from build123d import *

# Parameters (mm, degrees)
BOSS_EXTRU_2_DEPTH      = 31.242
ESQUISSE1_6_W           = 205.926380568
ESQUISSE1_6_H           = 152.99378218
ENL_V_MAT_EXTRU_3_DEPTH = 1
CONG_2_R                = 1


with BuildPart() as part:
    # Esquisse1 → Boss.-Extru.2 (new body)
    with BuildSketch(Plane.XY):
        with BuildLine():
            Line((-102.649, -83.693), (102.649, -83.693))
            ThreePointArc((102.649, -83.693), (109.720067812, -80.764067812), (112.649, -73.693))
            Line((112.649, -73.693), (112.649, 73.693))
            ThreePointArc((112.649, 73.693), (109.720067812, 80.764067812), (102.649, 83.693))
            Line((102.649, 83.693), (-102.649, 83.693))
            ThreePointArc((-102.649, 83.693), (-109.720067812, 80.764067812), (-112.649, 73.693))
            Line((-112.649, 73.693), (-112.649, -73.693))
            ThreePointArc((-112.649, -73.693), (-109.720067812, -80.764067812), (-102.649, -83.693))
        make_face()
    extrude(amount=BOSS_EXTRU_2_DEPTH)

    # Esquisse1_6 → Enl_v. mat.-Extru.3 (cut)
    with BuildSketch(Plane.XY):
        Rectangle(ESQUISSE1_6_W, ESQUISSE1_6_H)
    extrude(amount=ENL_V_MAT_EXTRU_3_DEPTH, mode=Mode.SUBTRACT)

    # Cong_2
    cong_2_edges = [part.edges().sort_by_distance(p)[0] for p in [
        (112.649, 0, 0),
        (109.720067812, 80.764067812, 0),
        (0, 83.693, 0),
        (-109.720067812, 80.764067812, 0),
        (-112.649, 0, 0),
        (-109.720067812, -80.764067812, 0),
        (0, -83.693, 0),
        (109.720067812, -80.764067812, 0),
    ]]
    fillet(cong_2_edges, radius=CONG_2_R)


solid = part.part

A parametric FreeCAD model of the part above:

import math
import FreeCAD as App
import Part
import Sketcher

V = App.Vector


def edges_at(feature, points):
    """Names of the edges that pass closest to the given points."""
    edges = feature.Shape.Edges
    near = lambda p: min(range(len(edges)), key=lambda i: edges[i].distToShape(Part.Vertex(*p))[0])
    return sorted({f"Edge{near(p) + 1}" for p in points})

doc = App.newDocument("Part")
body = doc.addObject("PartDesign::Body", "Body")

# Sketch on XY plane
sketch1 = body.newObject("Sketcher::SketchObject", "Sketch")
sketch1.AttachmentSupport = (doc.getObject("XY_Plane"), [""])
sketch1.MapMode = "FlatFace"
sketch1.addGeometry(Part.LineSegment(V(-103, -84, 0), V(103, -84, 0)), False)
sketch1.addGeometry(Part.ArcOfCircle(Part.Circle(V(103, -74, 0), V(0, 0, 1), 10), math.radians(-90), math.radians(0)), False)
sketch1.addGeometry(Part.LineSegment(V(113, -74, 0), V(113, 74, 0)), False)
sketch1.addGeometry(Part.ArcOfCircle(Part.Circle(V(103, 74, 0), V(0, 0, 1), 10), math.radians(0), math.radians(90)), False)
sketch1.addGeometry(Part.LineSegment(V(103, 84, 0), V(-103, 84, 0)), False)
sketch1.addGeometry(Part.ArcOfCircle(Part.Circle(V(-103, 74, 0), V(0, 0, 1), 10), math.radians(90), math.radians(180)), False)
sketch1.addGeometry(Part.LineSegment(V(-113, 74, 0), V(-113, -74, 0)), False)
sketch1.addGeometry(Part.ArcOfCircle(Part.Circle(V(-103, -74, 0), V(0, 0, 1), 10), math.radians(180), math.radians(270)), False)
sketch1.addConstraint(Sketcher.Constraint("Tangent", 0, 2, 1, 1))
sketch1.addConstraint(Sketcher.Constraint("Tangent", 1, 2, 2, 1))
sketch1.addConstraint(Sketcher.Constraint("Tangent", 2, 2, 3, 1))
sketch1.addConstraint(Sketcher.Constraint("Tangent", 3, 2, 4, 1))
sketch1.addConstraint(Sketcher.Constraint("Tangent", 4, 2, 5, 1))
sketch1.addConstraint(Sketcher.Constraint("Tangent", 5, 2, 6, 1))
sketch1.addConstraint(Sketcher.Constraint("Tangent", 6, 2, 7, 1))
sketch1.addConstraint(Sketcher.Constraint("Tangent", 7, 2, 0, 1))
sketch1.addConstraint(Sketcher.Constraint("Horizontal", 0))
sketch1.addConstraint(Sketcher.Constraint("Vertical", 2))
sketch1.addConstraint(Sketcher.Constraint("Horizontal", 4))
sketch1.addConstraint(Sketcher.Constraint("Vertical", 6))
sketch1.addConstraint(Sketcher.Constraint("Equal", 1, 3))
sketch1.addConstraint(Sketcher.Constraint("Equal", 3, 5))
sketch1.addConstraint(Sketcher.Constraint("Equal", 5, 7))
sketch1.addConstraint(Sketcher.Constraint("Symmetric", 1, 3, 5, 3, -1, 1))
sketch1.addConstraint(Sketcher.Constraint("Radius", 1, 10.0))
sketch1.addConstraint(Sketcher.Constraint("DistanceX", 0, 1, 0, 2, 205.298))
sketch1.addConstraint(Sketcher.Constraint("DistanceY", 2, 1, 2, 2, 147.386))
pad1 = body.newObject("PartDesign::Pad", "Pad")
pad1.Profile = sketch1
pad1.Length = 31.242

# Sketch on XY plane
sketch2 = body.newObject("Sketcher::SketchObject", "Sketch001")
sketch2.AttachmentSupport = (doc.getObject("XY_Plane"), [""])
sketch2.MapMode = "FlatFace"
sketch2.addGeometry(Part.LineSegment(V(-103, 76, 0), V(-103, -76, 0)), False)
sketch2.addGeometry(Part.LineSegment(V(-103, -76, 0), V(103, -76, 0)), False)
sketch2.addGeometry(Part.LineSegment(V(103, -76, 0), V(103, 76, 0)), False)
sketch2.addGeometry(Part.LineSegment(V(103, 76, 0), V(-103, 76, 0)), False)
sketch2.addConstraint(Sketcher.Constraint("Coincident", 0, 2, 1, 1))
sketch2.addConstraint(Sketcher.Constraint("Coincident", 1, 2, 2, 1))
sketch2.addConstraint(Sketcher.Constraint("Coincident", 2, 2, 3, 1))
sketch2.addConstraint(Sketcher.Constraint("Coincident", 3, 2, 0, 1))
sketch2.addConstraint(Sketcher.Constraint("Vertical", 0))
sketch2.addConstraint(Sketcher.Constraint("Horizontal", 1))
sketch2.addConstraint(Sketcher.Constraint("Vertical", 2))
sketch2.addConstraint(Sketcher.Constraint("Horizontal", 3))
sketch2.addConstraint(Sketcher.Constraint("Symmetric", 0, 2, 2, 2, -1, 1))
sketch2.addConstraint(Sketcher.Constraint("DistanceX", 1, 1, 1, 2, 205.926381))
sketch2.addConstraint(Sketcher.Constraint("DistanceY", 0, 2, 0, 1, 152.993782))
pocket1 = body.newObject("PartDesign::Pocket", "Pocket")
pocket1.Profile = sketch2
pocket1.Length = 1
pocket1.Reversed = True
doc.recompute()

fillet = body.newObject("PartDesign::Fillet", "Fillet")
fillet.Base = (pocket1, edges_at(pocket1, [
    (112.649, 0, 0),
    (109.72, 80.764, 0),
    (0, 83.693, 0),
    (-109.72, 80.764, 0),
    (-112.649, 0, 0),
    (-109.72, -80.764, 0),
    (0, -83.693, 0),
    (109.72, -80.764, 0),
]))
fillet.Radius = 1

doc.recompute()
